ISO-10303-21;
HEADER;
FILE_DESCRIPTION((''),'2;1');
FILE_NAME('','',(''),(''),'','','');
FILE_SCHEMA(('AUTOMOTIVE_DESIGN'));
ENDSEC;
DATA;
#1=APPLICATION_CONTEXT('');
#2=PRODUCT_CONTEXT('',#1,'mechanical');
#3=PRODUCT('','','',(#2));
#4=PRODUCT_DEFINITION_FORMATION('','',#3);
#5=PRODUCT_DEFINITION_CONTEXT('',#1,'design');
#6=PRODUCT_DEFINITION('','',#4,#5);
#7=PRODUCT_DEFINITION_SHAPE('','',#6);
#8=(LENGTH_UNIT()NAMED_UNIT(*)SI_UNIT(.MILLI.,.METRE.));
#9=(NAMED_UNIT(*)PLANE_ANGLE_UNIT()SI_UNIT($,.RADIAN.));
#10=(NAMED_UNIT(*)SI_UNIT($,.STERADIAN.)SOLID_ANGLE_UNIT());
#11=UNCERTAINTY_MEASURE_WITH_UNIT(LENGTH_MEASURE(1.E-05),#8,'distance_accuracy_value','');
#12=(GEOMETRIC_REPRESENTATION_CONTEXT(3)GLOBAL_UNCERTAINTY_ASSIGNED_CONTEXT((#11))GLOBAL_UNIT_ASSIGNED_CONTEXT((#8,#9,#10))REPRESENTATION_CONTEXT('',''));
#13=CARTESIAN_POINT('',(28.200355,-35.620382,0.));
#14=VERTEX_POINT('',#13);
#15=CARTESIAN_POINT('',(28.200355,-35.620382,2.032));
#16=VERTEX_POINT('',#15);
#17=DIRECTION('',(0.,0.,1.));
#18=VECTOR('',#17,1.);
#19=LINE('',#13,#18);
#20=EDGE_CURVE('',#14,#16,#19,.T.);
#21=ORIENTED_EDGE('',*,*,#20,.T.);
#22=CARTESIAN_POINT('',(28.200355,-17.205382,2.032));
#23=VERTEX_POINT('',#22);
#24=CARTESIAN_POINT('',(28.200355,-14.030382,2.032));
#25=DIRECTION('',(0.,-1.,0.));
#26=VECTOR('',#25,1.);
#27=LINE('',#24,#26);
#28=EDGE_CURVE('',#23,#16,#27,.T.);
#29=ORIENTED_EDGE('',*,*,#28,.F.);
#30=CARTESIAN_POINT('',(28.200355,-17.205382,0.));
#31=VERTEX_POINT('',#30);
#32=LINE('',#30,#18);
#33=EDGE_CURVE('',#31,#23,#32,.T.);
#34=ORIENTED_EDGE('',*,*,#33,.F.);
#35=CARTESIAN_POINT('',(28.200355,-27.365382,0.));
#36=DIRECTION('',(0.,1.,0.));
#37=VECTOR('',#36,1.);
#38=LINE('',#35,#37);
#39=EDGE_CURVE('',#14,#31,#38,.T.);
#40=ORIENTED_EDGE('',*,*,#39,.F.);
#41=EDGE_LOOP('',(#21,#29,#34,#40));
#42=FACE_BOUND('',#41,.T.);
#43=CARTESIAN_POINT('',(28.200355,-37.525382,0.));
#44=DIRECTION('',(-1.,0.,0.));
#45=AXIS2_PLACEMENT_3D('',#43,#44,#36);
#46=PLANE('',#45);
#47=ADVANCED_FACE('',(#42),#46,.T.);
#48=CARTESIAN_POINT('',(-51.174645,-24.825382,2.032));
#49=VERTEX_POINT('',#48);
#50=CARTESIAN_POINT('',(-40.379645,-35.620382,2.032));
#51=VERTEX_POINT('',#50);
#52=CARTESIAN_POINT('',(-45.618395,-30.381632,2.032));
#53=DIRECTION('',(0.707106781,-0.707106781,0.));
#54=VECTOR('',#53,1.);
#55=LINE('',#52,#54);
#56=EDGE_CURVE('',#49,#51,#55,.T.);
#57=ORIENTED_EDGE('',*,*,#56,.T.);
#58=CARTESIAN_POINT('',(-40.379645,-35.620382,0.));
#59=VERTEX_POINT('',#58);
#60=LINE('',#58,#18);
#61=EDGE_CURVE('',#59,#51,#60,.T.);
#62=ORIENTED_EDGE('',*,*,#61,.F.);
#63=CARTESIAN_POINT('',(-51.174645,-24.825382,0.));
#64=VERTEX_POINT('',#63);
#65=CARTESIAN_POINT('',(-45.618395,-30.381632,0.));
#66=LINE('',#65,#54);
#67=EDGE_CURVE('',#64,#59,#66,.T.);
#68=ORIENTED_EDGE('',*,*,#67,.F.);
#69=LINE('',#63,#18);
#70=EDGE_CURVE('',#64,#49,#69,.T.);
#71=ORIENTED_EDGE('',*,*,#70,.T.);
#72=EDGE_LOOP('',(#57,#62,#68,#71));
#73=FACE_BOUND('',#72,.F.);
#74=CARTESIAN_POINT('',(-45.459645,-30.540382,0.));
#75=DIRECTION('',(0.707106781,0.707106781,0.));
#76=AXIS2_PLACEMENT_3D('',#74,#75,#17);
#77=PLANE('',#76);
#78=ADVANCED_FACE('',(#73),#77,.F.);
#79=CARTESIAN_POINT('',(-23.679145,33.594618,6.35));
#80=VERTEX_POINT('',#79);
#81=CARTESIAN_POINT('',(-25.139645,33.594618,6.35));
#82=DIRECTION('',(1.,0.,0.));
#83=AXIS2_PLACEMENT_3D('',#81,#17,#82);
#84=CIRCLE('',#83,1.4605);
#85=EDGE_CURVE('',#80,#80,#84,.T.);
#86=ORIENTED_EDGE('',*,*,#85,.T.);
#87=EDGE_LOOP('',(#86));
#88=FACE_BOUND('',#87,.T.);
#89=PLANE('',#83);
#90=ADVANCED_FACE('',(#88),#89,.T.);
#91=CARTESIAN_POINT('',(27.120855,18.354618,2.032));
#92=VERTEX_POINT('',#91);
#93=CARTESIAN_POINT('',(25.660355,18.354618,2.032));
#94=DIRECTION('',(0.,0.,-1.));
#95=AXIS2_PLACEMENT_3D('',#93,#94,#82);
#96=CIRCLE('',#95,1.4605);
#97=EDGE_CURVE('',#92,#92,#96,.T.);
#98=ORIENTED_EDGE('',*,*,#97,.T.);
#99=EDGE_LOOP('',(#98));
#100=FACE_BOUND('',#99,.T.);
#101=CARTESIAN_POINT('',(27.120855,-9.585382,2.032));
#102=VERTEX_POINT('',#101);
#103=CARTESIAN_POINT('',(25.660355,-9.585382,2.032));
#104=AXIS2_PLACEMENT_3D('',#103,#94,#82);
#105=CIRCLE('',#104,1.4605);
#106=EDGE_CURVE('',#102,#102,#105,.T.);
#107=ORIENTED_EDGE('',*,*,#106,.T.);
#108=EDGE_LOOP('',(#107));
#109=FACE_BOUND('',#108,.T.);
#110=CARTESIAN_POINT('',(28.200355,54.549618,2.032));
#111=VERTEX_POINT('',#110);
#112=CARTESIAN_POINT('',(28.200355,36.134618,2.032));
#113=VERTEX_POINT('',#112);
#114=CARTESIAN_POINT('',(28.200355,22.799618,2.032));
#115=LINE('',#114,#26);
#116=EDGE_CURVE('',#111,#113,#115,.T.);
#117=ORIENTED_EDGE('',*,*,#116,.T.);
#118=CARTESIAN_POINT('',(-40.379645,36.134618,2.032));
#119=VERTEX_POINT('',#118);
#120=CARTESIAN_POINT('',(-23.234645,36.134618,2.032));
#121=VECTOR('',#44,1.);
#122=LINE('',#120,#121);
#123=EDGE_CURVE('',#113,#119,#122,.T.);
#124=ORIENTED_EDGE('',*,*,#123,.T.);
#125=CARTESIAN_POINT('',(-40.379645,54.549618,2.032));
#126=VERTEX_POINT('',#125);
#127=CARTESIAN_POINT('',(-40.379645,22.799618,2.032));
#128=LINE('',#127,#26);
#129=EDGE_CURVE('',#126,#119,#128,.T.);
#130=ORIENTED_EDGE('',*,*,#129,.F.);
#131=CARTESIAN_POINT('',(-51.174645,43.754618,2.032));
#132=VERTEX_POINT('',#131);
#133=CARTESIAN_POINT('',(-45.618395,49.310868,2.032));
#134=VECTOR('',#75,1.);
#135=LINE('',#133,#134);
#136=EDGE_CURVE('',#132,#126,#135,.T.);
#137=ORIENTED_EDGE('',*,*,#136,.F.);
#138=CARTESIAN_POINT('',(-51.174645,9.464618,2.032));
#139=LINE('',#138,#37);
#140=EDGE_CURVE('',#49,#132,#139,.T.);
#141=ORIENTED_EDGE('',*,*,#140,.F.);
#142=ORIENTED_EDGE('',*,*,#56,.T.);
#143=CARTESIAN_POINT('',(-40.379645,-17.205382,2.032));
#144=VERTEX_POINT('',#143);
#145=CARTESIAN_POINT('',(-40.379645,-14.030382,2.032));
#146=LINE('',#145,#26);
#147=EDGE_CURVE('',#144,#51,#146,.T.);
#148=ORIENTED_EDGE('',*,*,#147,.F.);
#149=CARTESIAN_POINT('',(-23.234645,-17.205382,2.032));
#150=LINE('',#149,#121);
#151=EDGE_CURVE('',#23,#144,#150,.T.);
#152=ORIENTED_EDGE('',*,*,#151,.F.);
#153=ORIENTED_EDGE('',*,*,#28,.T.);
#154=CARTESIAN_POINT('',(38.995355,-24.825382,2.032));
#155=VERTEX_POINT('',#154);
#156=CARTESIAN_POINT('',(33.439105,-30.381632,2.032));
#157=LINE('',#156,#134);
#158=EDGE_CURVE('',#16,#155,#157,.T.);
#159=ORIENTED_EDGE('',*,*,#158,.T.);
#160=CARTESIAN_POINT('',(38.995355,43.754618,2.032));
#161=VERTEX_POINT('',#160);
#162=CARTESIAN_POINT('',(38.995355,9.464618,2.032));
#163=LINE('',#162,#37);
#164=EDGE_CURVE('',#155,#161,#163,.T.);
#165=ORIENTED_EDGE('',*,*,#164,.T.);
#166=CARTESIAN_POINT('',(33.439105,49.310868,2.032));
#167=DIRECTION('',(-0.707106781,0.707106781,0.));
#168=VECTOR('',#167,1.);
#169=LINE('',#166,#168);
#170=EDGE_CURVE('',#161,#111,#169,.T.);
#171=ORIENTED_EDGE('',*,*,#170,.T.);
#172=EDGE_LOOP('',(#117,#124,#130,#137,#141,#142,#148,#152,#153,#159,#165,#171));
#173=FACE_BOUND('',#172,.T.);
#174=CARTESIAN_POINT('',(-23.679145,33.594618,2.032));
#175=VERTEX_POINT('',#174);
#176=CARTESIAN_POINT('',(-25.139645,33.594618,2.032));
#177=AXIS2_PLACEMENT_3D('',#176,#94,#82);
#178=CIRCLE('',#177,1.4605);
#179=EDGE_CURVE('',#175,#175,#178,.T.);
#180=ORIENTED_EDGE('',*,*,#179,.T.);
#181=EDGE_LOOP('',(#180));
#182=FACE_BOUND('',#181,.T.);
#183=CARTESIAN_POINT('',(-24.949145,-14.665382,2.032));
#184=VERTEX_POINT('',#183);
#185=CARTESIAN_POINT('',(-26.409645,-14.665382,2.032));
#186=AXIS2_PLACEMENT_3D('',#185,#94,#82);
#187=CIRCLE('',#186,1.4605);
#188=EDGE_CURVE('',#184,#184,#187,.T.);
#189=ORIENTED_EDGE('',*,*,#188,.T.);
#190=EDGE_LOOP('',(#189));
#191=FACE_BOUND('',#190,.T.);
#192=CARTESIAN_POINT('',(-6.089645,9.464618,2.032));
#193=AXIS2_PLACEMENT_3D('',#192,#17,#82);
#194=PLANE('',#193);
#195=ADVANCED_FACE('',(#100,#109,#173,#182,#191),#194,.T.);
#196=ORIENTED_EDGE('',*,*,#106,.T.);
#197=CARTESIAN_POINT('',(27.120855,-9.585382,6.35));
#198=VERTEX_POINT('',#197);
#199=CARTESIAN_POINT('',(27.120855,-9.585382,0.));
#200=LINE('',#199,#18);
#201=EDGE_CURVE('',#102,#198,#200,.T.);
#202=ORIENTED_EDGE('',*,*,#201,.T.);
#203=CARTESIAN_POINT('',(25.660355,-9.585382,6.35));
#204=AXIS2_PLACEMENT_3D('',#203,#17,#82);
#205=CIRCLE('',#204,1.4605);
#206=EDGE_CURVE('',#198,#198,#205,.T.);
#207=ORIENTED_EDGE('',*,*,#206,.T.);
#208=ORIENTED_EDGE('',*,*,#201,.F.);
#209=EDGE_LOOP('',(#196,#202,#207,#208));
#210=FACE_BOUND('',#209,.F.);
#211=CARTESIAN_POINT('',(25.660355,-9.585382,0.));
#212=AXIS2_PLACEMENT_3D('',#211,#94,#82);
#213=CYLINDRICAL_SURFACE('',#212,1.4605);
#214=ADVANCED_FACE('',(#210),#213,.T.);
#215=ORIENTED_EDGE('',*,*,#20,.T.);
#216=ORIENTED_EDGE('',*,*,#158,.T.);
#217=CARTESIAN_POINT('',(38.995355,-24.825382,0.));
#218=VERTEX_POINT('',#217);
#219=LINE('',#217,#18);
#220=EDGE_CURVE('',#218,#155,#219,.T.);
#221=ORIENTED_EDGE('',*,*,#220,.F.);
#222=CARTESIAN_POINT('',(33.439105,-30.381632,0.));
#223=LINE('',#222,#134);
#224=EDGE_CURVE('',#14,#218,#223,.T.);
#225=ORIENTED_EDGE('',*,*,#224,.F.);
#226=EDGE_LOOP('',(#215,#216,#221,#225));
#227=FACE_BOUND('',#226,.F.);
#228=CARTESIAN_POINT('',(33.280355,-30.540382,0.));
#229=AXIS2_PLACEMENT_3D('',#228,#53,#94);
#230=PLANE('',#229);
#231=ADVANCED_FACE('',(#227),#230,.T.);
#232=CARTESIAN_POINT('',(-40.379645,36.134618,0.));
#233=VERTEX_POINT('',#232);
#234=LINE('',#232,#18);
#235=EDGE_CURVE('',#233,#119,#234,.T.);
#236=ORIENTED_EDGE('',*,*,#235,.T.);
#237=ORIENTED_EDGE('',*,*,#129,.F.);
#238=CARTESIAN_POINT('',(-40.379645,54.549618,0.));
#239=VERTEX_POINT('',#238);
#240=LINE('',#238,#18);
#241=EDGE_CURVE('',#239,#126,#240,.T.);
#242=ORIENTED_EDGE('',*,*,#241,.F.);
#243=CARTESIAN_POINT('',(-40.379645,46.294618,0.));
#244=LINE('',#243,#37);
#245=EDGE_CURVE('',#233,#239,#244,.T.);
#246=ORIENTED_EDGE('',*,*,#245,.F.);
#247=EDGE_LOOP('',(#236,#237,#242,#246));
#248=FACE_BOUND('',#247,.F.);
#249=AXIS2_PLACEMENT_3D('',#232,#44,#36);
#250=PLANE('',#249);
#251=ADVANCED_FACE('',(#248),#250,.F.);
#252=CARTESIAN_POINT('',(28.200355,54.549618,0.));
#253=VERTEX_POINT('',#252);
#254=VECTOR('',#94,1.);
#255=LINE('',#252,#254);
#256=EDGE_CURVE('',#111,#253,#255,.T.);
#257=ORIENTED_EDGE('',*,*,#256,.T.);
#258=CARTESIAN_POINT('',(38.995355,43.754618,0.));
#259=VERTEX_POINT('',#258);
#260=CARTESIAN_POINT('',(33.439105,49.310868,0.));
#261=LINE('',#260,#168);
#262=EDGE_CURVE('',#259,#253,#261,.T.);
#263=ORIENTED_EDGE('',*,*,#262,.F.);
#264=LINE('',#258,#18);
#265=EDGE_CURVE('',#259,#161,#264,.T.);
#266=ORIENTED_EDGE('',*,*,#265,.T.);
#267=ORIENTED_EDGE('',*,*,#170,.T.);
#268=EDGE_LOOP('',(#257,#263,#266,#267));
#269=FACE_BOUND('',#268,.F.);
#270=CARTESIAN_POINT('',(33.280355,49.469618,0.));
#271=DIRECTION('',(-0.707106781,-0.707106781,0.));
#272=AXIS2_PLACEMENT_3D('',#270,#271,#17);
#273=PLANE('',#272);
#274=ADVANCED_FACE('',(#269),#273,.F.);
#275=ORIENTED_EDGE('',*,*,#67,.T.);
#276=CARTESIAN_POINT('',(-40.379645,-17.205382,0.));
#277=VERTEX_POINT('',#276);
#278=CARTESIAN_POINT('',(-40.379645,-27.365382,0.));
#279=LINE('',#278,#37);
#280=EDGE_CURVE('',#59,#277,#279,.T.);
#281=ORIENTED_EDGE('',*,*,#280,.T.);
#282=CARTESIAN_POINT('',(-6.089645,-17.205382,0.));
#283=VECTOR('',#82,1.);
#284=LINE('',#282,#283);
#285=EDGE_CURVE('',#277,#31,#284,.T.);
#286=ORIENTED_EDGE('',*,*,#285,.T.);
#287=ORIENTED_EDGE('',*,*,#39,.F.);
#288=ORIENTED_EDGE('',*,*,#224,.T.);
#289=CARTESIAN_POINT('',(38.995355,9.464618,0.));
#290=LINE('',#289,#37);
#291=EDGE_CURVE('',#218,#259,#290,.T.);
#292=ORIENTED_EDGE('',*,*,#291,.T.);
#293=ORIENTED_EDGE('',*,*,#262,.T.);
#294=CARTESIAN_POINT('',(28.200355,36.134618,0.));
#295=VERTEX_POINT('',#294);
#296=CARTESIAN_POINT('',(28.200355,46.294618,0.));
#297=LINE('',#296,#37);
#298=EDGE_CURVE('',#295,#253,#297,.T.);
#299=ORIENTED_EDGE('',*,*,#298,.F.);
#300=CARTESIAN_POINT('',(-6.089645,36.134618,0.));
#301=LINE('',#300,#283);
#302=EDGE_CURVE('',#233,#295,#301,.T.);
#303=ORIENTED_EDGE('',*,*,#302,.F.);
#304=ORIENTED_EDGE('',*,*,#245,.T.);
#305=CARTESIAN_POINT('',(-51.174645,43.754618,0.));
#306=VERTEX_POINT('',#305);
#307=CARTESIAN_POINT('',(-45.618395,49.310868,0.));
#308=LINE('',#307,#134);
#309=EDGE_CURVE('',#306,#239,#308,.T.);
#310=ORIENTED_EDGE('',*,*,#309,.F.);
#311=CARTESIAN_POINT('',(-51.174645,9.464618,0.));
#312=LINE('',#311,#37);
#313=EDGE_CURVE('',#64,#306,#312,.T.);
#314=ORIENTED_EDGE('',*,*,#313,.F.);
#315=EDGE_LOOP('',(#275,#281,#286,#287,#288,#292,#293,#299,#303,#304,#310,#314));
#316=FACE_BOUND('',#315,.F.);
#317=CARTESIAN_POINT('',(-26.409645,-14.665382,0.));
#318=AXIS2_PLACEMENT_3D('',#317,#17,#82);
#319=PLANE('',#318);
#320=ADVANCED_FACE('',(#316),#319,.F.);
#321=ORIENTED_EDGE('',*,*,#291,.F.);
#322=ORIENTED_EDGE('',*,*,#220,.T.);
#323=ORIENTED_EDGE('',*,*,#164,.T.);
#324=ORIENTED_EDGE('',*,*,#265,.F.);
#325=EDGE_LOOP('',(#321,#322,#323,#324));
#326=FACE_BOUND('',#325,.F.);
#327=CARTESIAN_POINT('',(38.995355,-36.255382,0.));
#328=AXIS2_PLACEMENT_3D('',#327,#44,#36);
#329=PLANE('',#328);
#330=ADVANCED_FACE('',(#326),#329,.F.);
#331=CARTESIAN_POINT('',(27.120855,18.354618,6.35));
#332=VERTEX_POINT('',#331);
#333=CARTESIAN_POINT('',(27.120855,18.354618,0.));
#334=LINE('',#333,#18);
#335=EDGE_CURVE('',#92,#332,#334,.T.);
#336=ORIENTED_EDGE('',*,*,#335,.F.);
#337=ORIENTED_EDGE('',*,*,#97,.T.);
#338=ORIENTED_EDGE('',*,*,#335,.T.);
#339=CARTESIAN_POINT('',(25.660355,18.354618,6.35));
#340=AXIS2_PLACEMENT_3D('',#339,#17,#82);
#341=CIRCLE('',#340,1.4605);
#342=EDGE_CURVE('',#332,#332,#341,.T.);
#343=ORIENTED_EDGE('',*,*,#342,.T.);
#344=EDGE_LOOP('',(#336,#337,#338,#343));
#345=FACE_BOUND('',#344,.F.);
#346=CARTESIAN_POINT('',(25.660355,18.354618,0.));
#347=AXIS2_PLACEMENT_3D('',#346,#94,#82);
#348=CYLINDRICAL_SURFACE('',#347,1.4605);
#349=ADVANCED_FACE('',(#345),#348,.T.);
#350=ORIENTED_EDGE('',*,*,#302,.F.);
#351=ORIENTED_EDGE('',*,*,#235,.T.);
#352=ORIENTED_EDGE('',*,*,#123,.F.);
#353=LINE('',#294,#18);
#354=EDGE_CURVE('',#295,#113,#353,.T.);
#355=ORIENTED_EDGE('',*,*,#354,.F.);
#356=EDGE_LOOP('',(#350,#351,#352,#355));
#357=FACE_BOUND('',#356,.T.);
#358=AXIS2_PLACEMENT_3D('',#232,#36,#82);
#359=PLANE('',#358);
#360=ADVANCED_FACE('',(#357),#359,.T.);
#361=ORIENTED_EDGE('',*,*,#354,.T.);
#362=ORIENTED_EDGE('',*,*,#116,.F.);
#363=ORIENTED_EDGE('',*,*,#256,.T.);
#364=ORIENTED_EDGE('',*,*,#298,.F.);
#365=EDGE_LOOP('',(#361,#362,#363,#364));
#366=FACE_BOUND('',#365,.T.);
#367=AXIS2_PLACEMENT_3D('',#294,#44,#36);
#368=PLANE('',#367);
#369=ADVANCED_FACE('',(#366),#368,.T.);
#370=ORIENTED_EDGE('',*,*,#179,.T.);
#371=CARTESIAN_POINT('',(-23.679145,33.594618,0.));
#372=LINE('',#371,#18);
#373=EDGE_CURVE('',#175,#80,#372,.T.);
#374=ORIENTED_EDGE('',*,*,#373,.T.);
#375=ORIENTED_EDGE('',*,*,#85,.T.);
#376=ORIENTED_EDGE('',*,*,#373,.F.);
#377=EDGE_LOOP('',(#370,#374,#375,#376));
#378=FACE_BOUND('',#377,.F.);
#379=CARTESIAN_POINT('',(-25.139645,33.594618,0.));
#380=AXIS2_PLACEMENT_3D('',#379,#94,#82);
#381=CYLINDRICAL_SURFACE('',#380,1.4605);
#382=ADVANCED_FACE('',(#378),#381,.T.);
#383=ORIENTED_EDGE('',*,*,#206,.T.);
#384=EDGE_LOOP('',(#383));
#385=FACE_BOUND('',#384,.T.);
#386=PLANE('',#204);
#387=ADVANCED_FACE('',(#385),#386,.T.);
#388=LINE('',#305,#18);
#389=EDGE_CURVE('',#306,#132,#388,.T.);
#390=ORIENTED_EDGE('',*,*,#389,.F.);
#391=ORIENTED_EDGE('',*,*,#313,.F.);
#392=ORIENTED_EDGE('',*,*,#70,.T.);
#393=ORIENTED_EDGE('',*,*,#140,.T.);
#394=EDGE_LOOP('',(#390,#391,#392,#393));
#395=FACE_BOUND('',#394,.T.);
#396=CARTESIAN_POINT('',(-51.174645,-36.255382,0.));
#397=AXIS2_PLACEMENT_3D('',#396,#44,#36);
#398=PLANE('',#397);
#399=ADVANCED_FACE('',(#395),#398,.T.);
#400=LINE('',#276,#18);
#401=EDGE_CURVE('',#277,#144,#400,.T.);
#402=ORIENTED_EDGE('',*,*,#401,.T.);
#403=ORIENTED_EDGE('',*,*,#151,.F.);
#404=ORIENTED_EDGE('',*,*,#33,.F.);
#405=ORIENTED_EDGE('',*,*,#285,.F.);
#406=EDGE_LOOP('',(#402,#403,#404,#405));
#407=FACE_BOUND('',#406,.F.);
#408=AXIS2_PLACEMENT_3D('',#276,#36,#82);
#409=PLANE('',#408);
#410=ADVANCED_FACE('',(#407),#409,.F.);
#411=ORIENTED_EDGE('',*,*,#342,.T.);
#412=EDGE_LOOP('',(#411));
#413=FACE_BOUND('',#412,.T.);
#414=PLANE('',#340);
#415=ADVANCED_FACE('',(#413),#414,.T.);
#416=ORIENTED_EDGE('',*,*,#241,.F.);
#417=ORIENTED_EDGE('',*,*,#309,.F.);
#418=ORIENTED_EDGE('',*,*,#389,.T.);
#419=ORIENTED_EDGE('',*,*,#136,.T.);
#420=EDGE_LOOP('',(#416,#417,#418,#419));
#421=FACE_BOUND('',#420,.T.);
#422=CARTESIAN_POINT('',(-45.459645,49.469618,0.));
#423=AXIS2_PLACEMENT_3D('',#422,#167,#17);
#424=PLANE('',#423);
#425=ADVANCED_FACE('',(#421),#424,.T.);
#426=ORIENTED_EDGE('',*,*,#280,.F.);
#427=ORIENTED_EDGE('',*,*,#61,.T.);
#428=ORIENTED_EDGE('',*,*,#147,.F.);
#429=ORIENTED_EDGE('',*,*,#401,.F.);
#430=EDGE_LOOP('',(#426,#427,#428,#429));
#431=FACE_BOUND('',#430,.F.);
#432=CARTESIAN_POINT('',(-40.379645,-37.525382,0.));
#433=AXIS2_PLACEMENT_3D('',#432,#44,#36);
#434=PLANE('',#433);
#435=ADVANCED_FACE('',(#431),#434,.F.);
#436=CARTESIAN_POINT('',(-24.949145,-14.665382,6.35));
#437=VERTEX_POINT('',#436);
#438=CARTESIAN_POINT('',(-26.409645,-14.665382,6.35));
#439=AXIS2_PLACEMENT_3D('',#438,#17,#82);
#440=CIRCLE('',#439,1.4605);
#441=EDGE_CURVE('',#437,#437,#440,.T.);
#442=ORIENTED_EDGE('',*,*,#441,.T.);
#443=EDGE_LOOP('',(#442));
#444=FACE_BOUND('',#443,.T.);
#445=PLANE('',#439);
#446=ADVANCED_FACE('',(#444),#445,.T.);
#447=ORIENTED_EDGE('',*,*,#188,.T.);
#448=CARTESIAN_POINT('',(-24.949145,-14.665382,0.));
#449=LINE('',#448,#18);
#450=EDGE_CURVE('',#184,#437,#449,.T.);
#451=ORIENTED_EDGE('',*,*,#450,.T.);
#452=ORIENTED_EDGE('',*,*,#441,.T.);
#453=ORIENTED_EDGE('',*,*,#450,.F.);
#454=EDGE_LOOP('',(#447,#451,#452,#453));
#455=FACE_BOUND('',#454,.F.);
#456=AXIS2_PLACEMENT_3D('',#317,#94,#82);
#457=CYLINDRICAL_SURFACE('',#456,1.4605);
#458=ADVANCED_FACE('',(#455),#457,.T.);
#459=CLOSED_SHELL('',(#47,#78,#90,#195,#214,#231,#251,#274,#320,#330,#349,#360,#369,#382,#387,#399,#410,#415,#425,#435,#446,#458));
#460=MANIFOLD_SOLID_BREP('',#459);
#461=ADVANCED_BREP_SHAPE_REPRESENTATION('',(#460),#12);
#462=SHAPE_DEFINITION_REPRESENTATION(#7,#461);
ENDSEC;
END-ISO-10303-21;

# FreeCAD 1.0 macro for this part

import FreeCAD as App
import Part
import Sketcher

V = App.Vector
Q = App.Units.Quantity


def edges_at(feature, points):
    """Names of the edges that pass closest to the given points."""
    edges = feature.Shape.Edges
    near = lambda p: min(range(len(edges)), key=lambda i: edges[i].distToShape(Part.Vertex(*p))[0])
    return sorted({f"Edge{near(p) + 1}" for p in points})


def add_polygon(sketch, points):
    """Adds a closed chain of lines whose ends are joined by coincident constraints."""
    first, n = sketch.GeometryCount, len(points)
    for a, b in zip(points, points[1:] + points[:1]):
        sketch.addGeometry(Part.LineSegment(App.Vector(*a, 0), App.Vector(*b, 0)), False)
    for i in range(n):
        sketch.addConstraint(Sketcher.Constraint("Coincident", first + i, 2, first + (i + 1) % n, 1))

doc = App.newDocument("Part")
body = doc.addObject("PartDesign::Body", "Body")

sketch1 = doc.addObject("Sketcher::SketchObject", "Sketch")
body.addObject(sketch1)
sketch1.AttachmentSupport = (doc.XY_Plane, [""])
sketch1.MapMode = "FlatFace"
add_polygon(sketch1, [(-51, 55), (-51, -36), (39, -36), (39, 55)])
sketch1.addConstraint([
    Sketcher.Constraint("Vertical", 0),
    Sketcher.Constraint("Horizontal", 1),
    Sketcher.Constraint("Vertical", 2),
    Sketcher.Constraint("Horizontal", 3),
    Sketcher.Constraint("DistanceY", 0, 2, 0, 1, Q("3.6 in")),
    Sketcher.Constraint("DistanceX", 1, 1, 1, 2, Q("3.55 in")),
    Sketcher.Constraint("DistanceY", 0, 2, -1, 1, 36.255382),
    Sketcher.Constraint("DistanceX", 0, 2, -1, 1, 51.174645),
])
pad1 = doc.addObject("PartDesign::Pad", "Pad")
body.addObject(pad1)
pad1.Profile = sketch1
pad1.Length = Q("0.08 in")
doc.recompute()

chamfer = doc.addObject("PartDesign::Chamfer", "Chamfer")
body.addObject(chamfer)
chamfer.Base = (pad1, edges_at(pad1, [
    (-51.175, 55.185, 1.016),
    (-51.175, -36.255, 1.016),
    (38.995, 55.185, 1.016),
    (38.995, -36.255, 1.016),
]))
chamfer.Size = Q("0.45 in")

sketch2 = doc.addObject("Sketcher::SketchObject", "Sketch001")
body.addObject(sketch2)
sketch2.AttachmentSupport = (doc.XY_Plane, [""])
sketch2.MapMode = "FlatFace"
add_polygon(sketch2, [(-40, -17), (-40, -38), (28, -38), (28, -17)])
add_polygon(sketch2, [(-40, 56), (-40, 36), (28, 36), (28, 56)])
sketch2.addConstraint([
    Sketcher.Constraint("Vertical", 0),
    Sketcher.Constraint("Horizontal", 1),
    Sketcher.Constraint("Vertical", 2),
    Sketcher.Constraint("Horizontal", 3),
    Sketcher.Constraint("Vertical", 4),
    Sketcher.Constraint("Horizontal", 5),
    Sketcher.Constraint("Vertical", 6),
    Sketcher.Constraint("Horizontal", 7),
    Sketcher.Constraint("Vertical", 3, 2, 4, 2),
    Sketcher.Constraint("Vertical", 2, 2, 5, 2),
    Sketcher.Constraint("Equal", 2, 4),
    Sketcher.Constraint("DistanceX", 1, 1, 1, 2, Q("2.7 in")),
    Sketcher.Constraint("DistanceY", 0, 2, 0, 1, Q("0.8 in")),
    Sketcher.Constraint("DistanceY", 3, 2, 4, 2, Q("2.1 in")),
    Sketcher.Constraint("DistanceY", 2, 2, -1, 1, 17.205382),
    Sketcher.Constraint("DistanceX", 0, 2, -1, 1, 40.379645),
])
pocket1 = doc.addObject("PartDesign::Pocket", "Pocket")
body.addObject(pocket1)
pocket1.Profile = sketch2
pocket1.Length = Q("1 in")
pocket1.Reversed = True

sketch3 = doc.addObject("Sketcher::SketchObject", "Sketch002")
body.addObject(sketch3)
sketch3.AttachmentSupport = (doc.XY_Plane, [""])
sketch3.MapMode = "FlatFace"
sketch3.addGeometry([
    Part.Circle(V(-26.4, -14.7, 0), V(0, 0, 1), 1.5),
    Part.Circle(V(25.7, -9.6, 0), V(0, 0, 1), 1.5),
    Part.Circle(V(25.7, 18.4, 0), V(0, 0, 1), 1.5),
    Part.Circle(V(-25.1, 33.6, 0), V(0, 0, 1), 1.5),
], False)
sketch3.addConstraint([
    Sketcher.Constraint("Equal", 0, 1),
    Sketcher.Constraint("Equal", 1, 2),
    Sketcher.Constraint("Equal", 2, 3),
    Sketcher.Constraint("Vertical", 1, 3, 2, 3),
    Sketcher.Constraint("Diameter", 0, Q("0.115 in")),
    Sketcher.Constraint("DistanceX", 3, 3, 2, 3, Q("2 in")),
    Sketcher.Constraint("DistanceY", 0, 3, 1, 3, Q("0.2 in")),
    Sketcher.Constraint("DistanceY", 1, 3, 2, 3, Q("1.1 in")),
    Sketcher.Constraint("DistanceY", 0, 3, 3, 3, Q("1.9 in")),
    Sketcher.Constraint("DistanceX", 0, 3, 1, 3, Q("2.05 in")),
    Sketcher.Constraint("DistanceY", 0, 3, -1, 1, 14.665382),
    Sketcher.Constraint("DistanceX", 0, 3, -1, 1, 26.409645),
])
pad2 = doc.addObject("PartDesign::Pad", "Pad001")
body.addObject(pad2)
pad2.Profile = sketch3
pad2.Length = Q("0.25 in")

doc.recompute()
